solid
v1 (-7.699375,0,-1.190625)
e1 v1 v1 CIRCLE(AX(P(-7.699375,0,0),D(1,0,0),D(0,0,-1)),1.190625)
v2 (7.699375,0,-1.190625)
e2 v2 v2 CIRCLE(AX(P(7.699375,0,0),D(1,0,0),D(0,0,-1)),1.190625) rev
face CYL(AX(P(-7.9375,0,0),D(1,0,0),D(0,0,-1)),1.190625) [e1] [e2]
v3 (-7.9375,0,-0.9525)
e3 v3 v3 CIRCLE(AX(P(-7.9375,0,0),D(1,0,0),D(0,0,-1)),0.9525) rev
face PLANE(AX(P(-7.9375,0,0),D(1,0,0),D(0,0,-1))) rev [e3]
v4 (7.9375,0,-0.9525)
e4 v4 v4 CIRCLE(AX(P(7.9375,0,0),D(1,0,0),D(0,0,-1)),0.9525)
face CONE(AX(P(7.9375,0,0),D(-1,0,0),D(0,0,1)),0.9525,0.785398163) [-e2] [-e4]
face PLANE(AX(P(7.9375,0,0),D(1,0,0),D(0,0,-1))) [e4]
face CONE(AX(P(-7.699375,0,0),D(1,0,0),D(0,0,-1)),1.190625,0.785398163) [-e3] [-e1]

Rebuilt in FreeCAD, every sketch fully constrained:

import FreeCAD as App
import Part
import Sketcher

V = App.Vector
Q = App.Units.Quantity


def edges_at(feature, points):
    """Names of the edges that pass closest to the given points."""
    edges = feature.Shape.Edges
    near = lambda p: min(range(len(edges)), key=lambda i: edges[i].distToShape(Part.Vertex(*p))[0])
    return sorted({f"Edge{near(p) + 1}" for p in points})

doc = App.newDocument("Part")
params = doc.addObject("Spreadsheet::Sheet", "Params")
for row, (alias, value) in enumerate([
    ("sketch1_diameter", "0.09375 in"),
    ("pad1_length", "0.3125 in"),
    ("pad1_length2", "0.3125 in"),
    ("chamfer_size", "0.238125 mm"),
], start=1):
    params.set(f"A{row}", alias)
    params.set(f"B{row}", "=" + value)
    params.setAlias(f"B{row}", alias)

body = doc.addObject("PartDesign::Body", "Body")

# Sketch on YZ plane
sketch1 = body.newObject("Sketcher::SketchObject", "Sketch")
sketch1.AttachmentSupport = (doc.getObject("YZ_Plane"), [""])
sketch1.MapMode = "FlatFace"
sketch1.addGeometry(Part.Circle(V(0, 0, 0), V(0, 0, 1), 1.2), False)
sketch1.addConstraint([
    Sketcher.Constraint("Coincident", 0, 3, -1, 1),
    Sketcher.Constraint("Diameter", 0, Q("0.09375 in")),
])
sketch1.setExpression("Constraints[1]", "Params.sketch1_diameter")
pad1 = body.newObject("PartDesign::Pad", "Pad")
pad1.Profile = sketch1
pad1.Type = "TwoLengths"
pad1.setExpression("Length", "Params.pad1_length")
pad1.setExpression("Length2", "Params.pad1_length2")
doc.recompute()

chamfer = body.newObject("PartDesign::Chamfer", "Chamfer")
chamfer.Base = (pad1, edges_at(pad1, [(-7.938, 0, 1.191), (7.938, 0, 1.191)]))
chamfer.setExpression("Size", "Params.chamfer_size")

doc.recompute()
